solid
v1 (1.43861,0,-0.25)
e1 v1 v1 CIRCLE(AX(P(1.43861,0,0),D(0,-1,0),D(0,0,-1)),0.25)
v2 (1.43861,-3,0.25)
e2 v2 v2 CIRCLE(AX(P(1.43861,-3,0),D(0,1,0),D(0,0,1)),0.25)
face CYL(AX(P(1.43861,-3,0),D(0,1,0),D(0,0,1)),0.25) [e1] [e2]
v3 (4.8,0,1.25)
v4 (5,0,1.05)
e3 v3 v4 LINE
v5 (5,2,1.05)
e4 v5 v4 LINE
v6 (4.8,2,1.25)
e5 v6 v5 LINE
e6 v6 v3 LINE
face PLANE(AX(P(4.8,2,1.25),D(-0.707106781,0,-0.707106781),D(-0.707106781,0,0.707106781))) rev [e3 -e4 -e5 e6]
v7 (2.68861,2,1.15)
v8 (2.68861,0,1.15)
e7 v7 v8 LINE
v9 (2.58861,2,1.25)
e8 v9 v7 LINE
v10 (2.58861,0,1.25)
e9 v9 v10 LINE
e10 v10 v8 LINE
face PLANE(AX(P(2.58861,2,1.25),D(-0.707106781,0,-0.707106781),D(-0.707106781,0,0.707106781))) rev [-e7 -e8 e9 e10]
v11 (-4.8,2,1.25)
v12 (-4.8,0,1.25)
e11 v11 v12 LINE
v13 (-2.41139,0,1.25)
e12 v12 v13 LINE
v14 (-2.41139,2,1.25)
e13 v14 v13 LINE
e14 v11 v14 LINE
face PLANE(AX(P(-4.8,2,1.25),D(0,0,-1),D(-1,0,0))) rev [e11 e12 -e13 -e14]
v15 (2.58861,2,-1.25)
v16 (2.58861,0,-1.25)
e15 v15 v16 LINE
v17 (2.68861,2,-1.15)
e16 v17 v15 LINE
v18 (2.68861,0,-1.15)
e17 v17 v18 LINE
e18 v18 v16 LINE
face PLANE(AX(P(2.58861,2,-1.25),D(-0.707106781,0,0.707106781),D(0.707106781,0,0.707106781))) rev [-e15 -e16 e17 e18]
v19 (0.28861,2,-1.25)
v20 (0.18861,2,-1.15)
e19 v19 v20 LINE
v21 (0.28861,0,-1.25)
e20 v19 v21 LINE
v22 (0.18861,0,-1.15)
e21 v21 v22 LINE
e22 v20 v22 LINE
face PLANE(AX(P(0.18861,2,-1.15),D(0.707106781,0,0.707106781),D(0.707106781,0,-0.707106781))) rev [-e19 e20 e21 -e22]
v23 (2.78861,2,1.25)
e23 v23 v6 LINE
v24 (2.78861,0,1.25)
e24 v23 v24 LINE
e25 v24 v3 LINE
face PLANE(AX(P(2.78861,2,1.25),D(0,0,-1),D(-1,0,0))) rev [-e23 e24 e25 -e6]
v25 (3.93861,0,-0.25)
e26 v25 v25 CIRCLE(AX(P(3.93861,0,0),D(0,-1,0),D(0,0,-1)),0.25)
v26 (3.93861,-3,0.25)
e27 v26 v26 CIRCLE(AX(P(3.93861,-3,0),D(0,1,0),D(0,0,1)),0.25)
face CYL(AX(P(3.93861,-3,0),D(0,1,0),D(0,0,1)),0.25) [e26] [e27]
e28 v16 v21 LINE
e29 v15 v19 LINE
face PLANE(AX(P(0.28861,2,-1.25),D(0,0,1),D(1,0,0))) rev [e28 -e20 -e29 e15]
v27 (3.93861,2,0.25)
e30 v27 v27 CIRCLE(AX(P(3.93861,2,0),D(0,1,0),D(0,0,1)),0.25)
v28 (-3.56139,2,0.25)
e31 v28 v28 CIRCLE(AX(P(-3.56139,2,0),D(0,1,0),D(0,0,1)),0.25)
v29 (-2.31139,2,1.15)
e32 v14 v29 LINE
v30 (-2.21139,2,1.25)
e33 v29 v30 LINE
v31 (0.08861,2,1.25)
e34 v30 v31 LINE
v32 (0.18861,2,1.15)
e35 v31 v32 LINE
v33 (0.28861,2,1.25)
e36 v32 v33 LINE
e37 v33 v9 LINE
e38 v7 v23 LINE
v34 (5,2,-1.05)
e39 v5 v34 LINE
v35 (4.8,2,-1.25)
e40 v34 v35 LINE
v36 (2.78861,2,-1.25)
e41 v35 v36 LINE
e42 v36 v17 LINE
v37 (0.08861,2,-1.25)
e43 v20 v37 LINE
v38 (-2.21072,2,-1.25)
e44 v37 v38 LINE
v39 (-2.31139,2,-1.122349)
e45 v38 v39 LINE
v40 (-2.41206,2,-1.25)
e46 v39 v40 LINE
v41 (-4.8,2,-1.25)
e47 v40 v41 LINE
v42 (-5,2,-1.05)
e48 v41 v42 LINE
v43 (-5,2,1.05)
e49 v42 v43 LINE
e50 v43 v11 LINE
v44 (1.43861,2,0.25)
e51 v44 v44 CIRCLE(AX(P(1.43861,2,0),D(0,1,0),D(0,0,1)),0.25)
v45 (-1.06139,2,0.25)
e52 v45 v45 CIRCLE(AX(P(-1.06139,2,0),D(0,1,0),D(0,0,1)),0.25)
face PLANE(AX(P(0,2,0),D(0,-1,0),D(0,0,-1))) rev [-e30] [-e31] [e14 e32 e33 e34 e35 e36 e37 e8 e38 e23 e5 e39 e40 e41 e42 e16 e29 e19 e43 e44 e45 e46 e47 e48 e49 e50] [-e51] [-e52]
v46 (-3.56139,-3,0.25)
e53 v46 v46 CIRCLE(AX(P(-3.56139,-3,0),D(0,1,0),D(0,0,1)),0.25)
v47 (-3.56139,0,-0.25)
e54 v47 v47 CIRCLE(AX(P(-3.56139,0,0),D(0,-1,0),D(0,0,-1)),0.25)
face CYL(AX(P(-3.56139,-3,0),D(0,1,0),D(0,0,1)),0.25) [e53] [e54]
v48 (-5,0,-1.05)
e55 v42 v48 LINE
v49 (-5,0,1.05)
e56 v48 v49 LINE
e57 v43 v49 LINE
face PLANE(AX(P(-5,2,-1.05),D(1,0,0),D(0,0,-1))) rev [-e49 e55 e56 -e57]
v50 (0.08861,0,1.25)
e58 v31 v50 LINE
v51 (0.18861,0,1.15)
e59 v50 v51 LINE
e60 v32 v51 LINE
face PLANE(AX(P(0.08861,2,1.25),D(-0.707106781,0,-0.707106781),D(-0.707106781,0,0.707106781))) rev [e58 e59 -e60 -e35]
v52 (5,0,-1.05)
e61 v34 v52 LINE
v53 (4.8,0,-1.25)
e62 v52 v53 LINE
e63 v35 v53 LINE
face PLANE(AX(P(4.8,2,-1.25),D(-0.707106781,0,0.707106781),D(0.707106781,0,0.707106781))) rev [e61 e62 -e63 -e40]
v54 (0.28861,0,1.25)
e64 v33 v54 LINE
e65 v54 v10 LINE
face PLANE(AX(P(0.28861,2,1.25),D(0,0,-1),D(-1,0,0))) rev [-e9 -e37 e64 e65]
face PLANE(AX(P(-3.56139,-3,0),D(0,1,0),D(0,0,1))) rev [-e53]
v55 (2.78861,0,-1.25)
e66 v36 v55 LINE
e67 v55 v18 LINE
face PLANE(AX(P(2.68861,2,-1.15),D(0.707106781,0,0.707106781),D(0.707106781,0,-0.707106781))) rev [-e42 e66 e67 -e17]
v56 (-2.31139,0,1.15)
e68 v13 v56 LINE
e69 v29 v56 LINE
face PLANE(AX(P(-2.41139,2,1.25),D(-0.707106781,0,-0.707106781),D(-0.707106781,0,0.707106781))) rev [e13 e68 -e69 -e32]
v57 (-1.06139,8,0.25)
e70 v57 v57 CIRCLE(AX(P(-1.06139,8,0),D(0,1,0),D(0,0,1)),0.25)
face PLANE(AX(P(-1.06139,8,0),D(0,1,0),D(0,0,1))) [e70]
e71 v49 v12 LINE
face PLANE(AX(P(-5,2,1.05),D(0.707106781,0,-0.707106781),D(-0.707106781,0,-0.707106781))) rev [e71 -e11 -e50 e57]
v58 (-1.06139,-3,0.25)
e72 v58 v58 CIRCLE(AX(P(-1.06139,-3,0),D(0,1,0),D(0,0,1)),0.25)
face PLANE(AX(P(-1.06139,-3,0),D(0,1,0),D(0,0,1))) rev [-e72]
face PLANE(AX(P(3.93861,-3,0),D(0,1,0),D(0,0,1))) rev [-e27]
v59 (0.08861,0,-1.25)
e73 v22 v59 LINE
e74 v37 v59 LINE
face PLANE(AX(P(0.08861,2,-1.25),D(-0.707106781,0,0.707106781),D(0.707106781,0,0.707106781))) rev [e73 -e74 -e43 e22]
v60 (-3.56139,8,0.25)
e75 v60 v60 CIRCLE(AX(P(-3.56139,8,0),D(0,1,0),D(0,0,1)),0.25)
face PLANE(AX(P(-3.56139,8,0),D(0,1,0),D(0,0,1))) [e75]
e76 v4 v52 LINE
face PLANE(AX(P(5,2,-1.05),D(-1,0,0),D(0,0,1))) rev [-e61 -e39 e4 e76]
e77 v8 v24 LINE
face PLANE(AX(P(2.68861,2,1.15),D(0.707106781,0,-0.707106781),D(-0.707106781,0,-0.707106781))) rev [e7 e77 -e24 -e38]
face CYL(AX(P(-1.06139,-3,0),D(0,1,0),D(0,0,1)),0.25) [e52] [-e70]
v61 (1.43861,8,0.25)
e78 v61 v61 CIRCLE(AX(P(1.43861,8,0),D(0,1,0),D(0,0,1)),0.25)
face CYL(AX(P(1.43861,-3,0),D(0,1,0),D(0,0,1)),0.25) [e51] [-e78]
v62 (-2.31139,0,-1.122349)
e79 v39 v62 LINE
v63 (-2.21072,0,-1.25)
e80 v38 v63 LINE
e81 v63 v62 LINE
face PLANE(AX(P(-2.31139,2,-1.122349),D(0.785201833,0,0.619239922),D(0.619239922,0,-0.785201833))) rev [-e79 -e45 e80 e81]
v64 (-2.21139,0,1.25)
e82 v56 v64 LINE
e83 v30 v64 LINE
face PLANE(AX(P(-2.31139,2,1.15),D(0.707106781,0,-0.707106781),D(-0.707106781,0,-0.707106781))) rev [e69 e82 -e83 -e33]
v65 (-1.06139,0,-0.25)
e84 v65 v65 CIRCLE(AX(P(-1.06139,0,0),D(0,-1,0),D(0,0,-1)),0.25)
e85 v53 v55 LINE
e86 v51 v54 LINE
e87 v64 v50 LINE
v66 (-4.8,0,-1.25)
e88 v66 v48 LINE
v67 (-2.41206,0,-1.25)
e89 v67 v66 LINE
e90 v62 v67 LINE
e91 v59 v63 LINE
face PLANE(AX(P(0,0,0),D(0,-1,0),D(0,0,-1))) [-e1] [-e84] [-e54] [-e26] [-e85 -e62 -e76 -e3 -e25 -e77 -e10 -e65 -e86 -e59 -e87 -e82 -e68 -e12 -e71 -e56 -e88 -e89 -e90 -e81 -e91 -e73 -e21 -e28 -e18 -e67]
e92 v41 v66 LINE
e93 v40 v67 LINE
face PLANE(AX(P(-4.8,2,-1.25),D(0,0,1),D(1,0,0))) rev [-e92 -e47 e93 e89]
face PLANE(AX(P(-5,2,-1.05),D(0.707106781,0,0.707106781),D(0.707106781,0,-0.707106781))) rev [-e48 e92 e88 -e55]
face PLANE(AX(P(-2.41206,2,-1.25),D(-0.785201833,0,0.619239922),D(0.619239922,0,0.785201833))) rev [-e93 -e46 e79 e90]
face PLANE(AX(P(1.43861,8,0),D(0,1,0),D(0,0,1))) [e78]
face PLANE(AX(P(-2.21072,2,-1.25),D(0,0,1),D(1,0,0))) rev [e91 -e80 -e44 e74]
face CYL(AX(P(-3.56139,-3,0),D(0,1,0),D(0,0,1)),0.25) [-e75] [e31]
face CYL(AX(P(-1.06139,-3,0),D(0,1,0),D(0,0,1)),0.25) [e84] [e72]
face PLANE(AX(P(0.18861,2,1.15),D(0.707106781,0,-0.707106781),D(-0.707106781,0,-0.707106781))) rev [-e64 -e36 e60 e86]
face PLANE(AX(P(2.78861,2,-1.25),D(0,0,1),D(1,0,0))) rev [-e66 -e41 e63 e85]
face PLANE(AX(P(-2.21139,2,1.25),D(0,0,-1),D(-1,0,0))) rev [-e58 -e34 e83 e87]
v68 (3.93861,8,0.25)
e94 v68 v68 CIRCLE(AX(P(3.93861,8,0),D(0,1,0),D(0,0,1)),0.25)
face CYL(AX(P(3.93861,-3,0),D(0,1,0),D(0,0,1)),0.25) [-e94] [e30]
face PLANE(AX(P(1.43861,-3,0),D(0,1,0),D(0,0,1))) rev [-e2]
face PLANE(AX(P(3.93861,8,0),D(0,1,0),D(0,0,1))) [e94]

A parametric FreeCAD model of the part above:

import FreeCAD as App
import Part
import Sketcher

V = App.Vector
Q = App.Units.Quantity

doc = App.newDocument("Part")
params = doc.addObject("Spreadsheet::Sheet", "Params")
for row, (alias, value) in enumerate([
    ("sketch1_diameter", "0.5 mm"),
    ("sketch1_width", "2.3 mm"),
    ("sketch1_height", "2.1 mm"),
    ("pad1_length", "2 mm"),
    ("sketch2_diameter", "0.5 mm"),
    ("pad2_length", "6 mm"),
    ("pad2_length2", "5 mm"),
], start=1):
    params.set(f"A{row}", alias)
    params.set(f"B{row}", "=" + value)
    params.setAlias(f"B{row}", alias)

body = doc.addObject("PartDesign::Body", "Body")

sketch1 = body.newObject("Sketcher::SketchObject", "Sketch")
sketch1.AttachmentSupport = (doc.getObject("XZ_Plane"), [""])
sketch1.MapMode = "FlatFace"
sketch1.addGeometry(Part.LineSegment(V(-2.41, -1.25, 0), V(-4.8, -1.25, 0)), False)
sketch1.addGeometry(Part.LineSegment(V(-4.8, -1.25, 0), V(-5, -1.05, 0)), False)
sketch1.addGeometry(Part.LineSegment(V(-5, -1.05, 0), V(-5, 1.05, 0)), False)
sketch1.addGeometry(Part.LineSegment(V(-5, 1.05, 0), V(-4.8, 1.25, 0)), False)
sketch1.addGeometry(Part.LineSegment(V(-4.8, 1.25, 0), V(-2.41, 1.25, 0)), False)
sketch1.addGeometry(Part.LineSegment(V(-2.41, 1.25, 0), V(-2.31, 1.15, 0)), False)
sketch1.addGeometry(Part.LineSegment(V(-2.31, 1.15, 0), V(-2.21, 1.25, 0)), False)
sketch1.addGeometry(Part.LineSegment(V(-2.21, 1.25, 0), V(0.09, 1.25, 0)), False)
sketch1.addGeometry(Part.LineSegment(V(0.09, 1.25, 0), V(0.19, 1.15, 0)), False)
sketch1.addGeometry(Part.LineSegment(V(0.19, 1.15, 0), V(0.29, 1.25, 0)), False)
sketch1.addGeometry(Part.LineSegment(V(0.29, 1.25, 0), V(2.59, 1.25, 0)), False)
sketch1.addGeometry(Part.LineSegment(V(2.59, 1.25, 0), V(2.69, 1.15, 0)), False)
sketch1.addGeometry(Part.LineSegment(V(2.69, 1.15, 0), V(2.79, 1.25, 0)), False)
sketch1.addGeometry(Part.LineSegment(V(2.79, 1.25, 0), V(4.8, 1.25, 0)), False)
sketch1.addGeometry(Part.LineSegment(V(4.8, 1.25, 0), V(5, 1.05, 0)), False)
sketch1.addGeometry(Part.LineSegment(V(5, 1.05, 0), V(5, -1.05, 0)), False)
sketch1.addGeometry(Part.LineSegment(V(5, -1.05, 0), V(4.8, -1.25, 0)), False)
sketch1.addGeometry(Part.LineSegment(V(4.8, -1.25, 0), V(2.79, -1.25, 0)), False)
sketch1.addGeometry(Part.LineSegment(V(2.79, -1.25, 0), V(2.69, -1.15, 0)), False)
sketch1.addGeometry(Part.LineSegment(V(2.69, -1.15, 0), V(2.59, -1.25, 0)), False)
sketch1.addGeometry(Part.LineSegment(V(2.59, -1.25, 0), V(0.29, -1.25, 0)), False)
sketch1.addGeometry(Part.LineSegment(V(0.29, -1.25, 0), V(0.19, -1.15, 0)), False)
sketch1.addGeometry(Part.LineSegment(V(0.19, -1.15, 0), V(0.09, -1.25, 0)), False)
sketch1.addGeometry(Part.LineSegment(V(0.09, -1.25, 0), V(-2.21, -1.25, 0)), False)
sketch1.addGeometry(Part.LineSegment(V(-2.21, -1.25, 0), V(-2.31, -1.12, 0)), False)
sketch1.addGeometry(Part.LineSegment(V(-2.31, -1.12, 0), V(-2.41, -1.25, 0)), False)
sketch1.addGeometry(Part.Circle(V(3.94, 0, 0), V(0, 0, 1), 0.25), False)
sketch1.addGeometry(Part.Circle(V(1.44, 0, 0), V(0, 0, 1), 0.25), False)
sketch1.addGeometry(Part.Circle(V(-1.06, 0, 0), V(0, 0, 1), 0.25), False)
sketch1.addGeometry(Part.Circle(V(-3.56, 0, 0), V(0, 0, 1), 0.25), False)
sketch1.addConstraint(Sketcher.Constraint("Coincident", 0, 2, 1, 1))
sketch1.addConstraint(Sketcher.Constraint("Coincident", 1, 2, 2, 1))
sketch1.addConstraint(Sketcher.Constraint("Coincident", 2, 2, 3, 1))
sketch1.addConstraint(Sketcher.Constraint("Coincident", 3, 2, 4, 1))
sketch1.addConstraint(Sketcher.Constraint("Coincident", 4, 2, 5, 1))
sketch1.addConstraint(Sketcher.Constraint("Coincident", 5, 2, 6, 1))
sketch1.addConstraint(Sketcher.Constraint("Coincident", 6, 2, 7, 1))
sketch1.addConstraint(Sketcher.Constraint("Coincident", 7, 2, 8, 1))
sketch1.addConstraint(Sketcher.Constraint("Coincident", 8, 2, 9, 1))
sketch1.addConstraint(Sketcher.Constraint("Coincident", 9, 2, 10, 1))
sketch1.addConstraint(Sketcher.Constraint("Coincident", 10, 2, 11, 1))
sketch1.addConstraint(Sketcher.Constraint("Coincident", 11, 2, 12, 1))
sketch1.addConstraint(Sketcher.Constraint("Coincident", 12, 2, 13, 1))
sketch1.addConstraint(Sketcher.Constraint("Coincident", 13, 2, 14, 1))
sketch1.addConstraint(Sketcher.Constraint("Coincident", 14, 2, 15, 1))
sketch1.addConstraint(Sketcher.Constraint("Coincident", 15, 2, 16, 1))
sketch1.addConstraint(Sketcher.Constraint("Coincident", 16, 2, 17, 1))
sketch1.addConstraint(Sketcher.Constraint("Coincident", 17, 2, 18, 1))
sketch1.addConstraint(Sketcher.Constraint("Coincident", 18, 2, 19, 1))
sketch1.addConstraint(Sketcher.Constraint("Coincident", 19, 2, 20, 1))
sketch1.addConstraint(Sketcher.Constraint("Coincident", 20, 2, 21, 1))
sketch1.addConstraint(Sketcher.Constraint("Coincident", 21, 2, 22, 1))
sketch1.addConstraint(Sketcher.Constraint("Coincident", 22, 2, 23, 1))
sketch1.addConstraint(Sketcher.Constraint("Coincident", 23, 2, 24, 1))
sketch1.addConstraint(Sketcher.Constraint("Coincident", 24, 2, 25, 1))
sketch1.addConstraint(Sketcher.Constraint("Coincident", 25, 2, 0, 1))
sketch1.addConstraint(Sketcher.Constraint("Horizontal", 0))
sketch1.addConstraint(Sketcher.Constraint("Vertical", 2))
sketch1.addConstraint(Sketcher.Constraint("Horizontal", 4))
sketch1.addConstraint(Sketcher.Constraint("Horizontal", 7))
sketch1.addConstraint(Sketcher.Constraint("Horizontal", 10))
sketch1.addConstraint(Sketcher.Constraint("Horizontal", 13))
sketch1.addConstraint(Sketcher.Constraint("Vertical", 15))
sketch1.addConstraint(Sketcher.Constraint("Horizontal", 17))
sketch1.addConstraint(Sketcher.Constraint("Horizontal", 20))
sketch1.addConstraint(Sketcher.Constraint("Horizontal", 23))
sketch1.addConstraint(Sketcher.Constraint("Equal", 26, 27))
sketch1.addConstraint(Sketcher.Constraint("Equal", 27, 28))
sketch1.addConstraint(Sketcher.Constraint("Equal", 28, 29))
sketch1.addConstraint(Sketcher.Constraint("Symmetric", 0, 2, 13, 2, -1, 1))
sketch1.addConstraint(Sketcher.Constraint("Symmetric", 1, 2, 14, 2, -1, 1))
sketch1.addConstraint(Sketcher.Constraint("Symmetric", 3, 2, 16, 2, -1, 1))
sketch1.addConstraint(Sketcher.Constraint("Symmetric", 3, 2, 13, 2, -2))
sketch1.addConstraint(Sketcher.Constraint("Symmetric", 11, 2, 18, 2, -1))
sketch1.addConstraint(Sketcher.Constraint("Symmetric", 10, 2, 19, 2, -1))
sketch1.addConstraint(Sketcher.Constraint("Symmetric", 8, 2, 21, 2, -1))
sketch1.addConstraint(Sketcher.Constraint("Symmetric", 7, 2, 22, 2, -1))
sketch1.addConstraint(Sketcher.Constraint("PointOnObject", 26, 3, -1))
sketch1.addConstraint(Sketcher.Constraint("PointOnObject", 27, 3, -1))
sketch1.addConstraint(Sketcher.Constraint("PointOnObject", 28, 3, -1))
sketch1.addConstraint(Sketcher.Constraint("PointOnObject", 29, 3, -1))
sketch1.addConstraint(Sketcher.Constraint("Perpendicular", 1, 3))
sketch1.addConstraint(Sketcher.Constraint("Perpendicular", 3, 5))
sketch1.addConstraint(Sketcher.Constraint("Perpendicular", 5, 6))
sketch1.addConstraint(Sketcher.Constraint("Perpendicular", 6, 8))
sketch1.addConstraint(Sketcher.Constraint("Perpendicular", 8, 9))
sketch1.addConstraint(Sketcher.Constraint("Perpendicular", 9, 11))
sketch1.addConstraint(Sketcher.Constraint("Perpendicular", 11, 12))
sketch1.addConstraint(Sketcher.Constraint("Perpendicular", 14, 16))
sketch1.addConstraint(Sketcher.Constraint("Perpendicular", 16, 18))
sketch1.addConstraint(Sketcher.Constraint("Perpendicular", 18, 19))
sketch1.addConstraint(Sketcher.Constraint("Perpendicular", 19, 21))
sketch1.addConstraint(Sketcher.Constraint("Horizontal", 4, 2, 6, 2))
sketch1.addConstraint(Sketcher.Constraint("Horizontal", 5, 2, 8, 2))
sketch1.addConstraint(Sketcher.Constraint("Horizontal", 7, 2, 9, 2))
sketch1.addConstraint(Sketcher.Constraint("Horizontal", 8, 2, 11, 2))
sketch1.addConstraint(Sketcher.Constraint("Vertical", 5, 2, 24, 2))
sketch1.addConstraint(Sketcher.Constraint("Equal", 7, 10))
sketch1.addConstraint(Sketcher.Constraint("Equal", 24, 25))
sketch1.addConstraint(Sketcher.Constraint("Diameter", 26, Q("0.5 mm")))
sketch1.addConstraint(Sketcher.Constraint("DistanceX", 7, 1, 7, 2, Q("2.3 mm")))
sketch1.addConstraint(Sketcher.Constraint("DistanceY", 2, 1, 2, 2, Q("2.1 mm")))
sketch1.addConstraint(Sketcher.Constraint("DistanceX", 1, 2, -1, 1, Q("5 mm")))
sketch1.addConstraint(Sketcher.Constraint("DistanceX", 28, 3, 26, 3, Q("5 mm")))
sketch1.addConstraint(Sketcher.Constraint("DistanceX", 29, 3, 27, 3, Q("5 mm")))
sketch1.addConstraint(Sketcher.Constraint("DistanceX", 0, 2, -1, 1, Q("4.8 mm")))
sketch1.addConstraint(Sketcher.Constraint("DistanceX", 27, 3, 26, 3, Q("2.5 mm")))
sketch1.addConstraint(Sketcher.Constraint("DistanceX", 4, 2, 5, 2, Q("0.1 mm")))
sketch1.addConstraint(Sketcher.Constraint("DistanceX", 29, 3, 4, 2, Q("1.15 mm")))
sketch1.addConstraint(Sketcher.Constraint("DistanceX", 0, 2, 0, 1, Q("2.38794 mm")))
sketch1.addConstraint(Sketcher.Constraint("DistanceX", 4, 1, 4, 2, Q("2.38861 mm")))
sketch1.addConstraint(Sketcher.Constraint("Distance", 24, Q("0.162571 mm")))
sketch1.setExpression("Constraints[69]", "Params.sketch1_diameter")
sketch1.setExpression("Constraints[70]", "Params.sketch1_width")
sketch1.setExpression("Constraints[71]", "Params.sketch1_height")
pad1 = body.newObject("PartDesign::Pad", "Pad")
pad1.Profile = sketch1
pad1.setExpression("Length", "Params.pad1_length")
pad1.Reversed = True

sketch2 = body.newObject("Sketcher::SketchObject", "Sketch001")
sketch2.AttachmentSupport = (doc.getObject("XZ_Plane"), [""])
sketch2.MapMode = "FlatFace"
sketch2.AttachmentOffset = App.Placement(V(0, 0, -2), App.Rotation())
sketch2.addGeometry(Part.Circle(V(-3.56, 0, 0), V(0, 0, 1), 0.25), False)
sketch2.addGeometry(Part.Circle(V(-1.06, 0, 0), V(0, 0, 1), 0.25), False)
sketch2.addGeometry(Part.Circle(V(1.44, 0, 0), V(0, 0, 1), 0.25), False)
sketch2.addGeometry(Part.Circle(V(3.94, 0, 0), V(0, 0, 1), 0.25), False)
sketch2.addConstraint(Sketcher.Constraint("Equal", 0, 1))
sketch2.addConstraint(Sketcher.Constraint("Equal", 1, 2))
sketch2.addConstraint(Sketcher.Constraint("Equal", 2, 3))
sketch2.addConstraint(Sketcher.Constraint("PointOnObject", 0, 3, -1))
sketch2.addConstraint(Sketcher.Constraint("PointOnObject", 1, 3, -1))
sketch2.addConstraint(Sketcher.Constraint("PointOnObject", 2, 3, -1))
sketch2.addConstraint(Sketcher.Constraint("PointOnObject", 3, 3, -1))
sketch2.addConstraint(Sketcher.Constraint("Diameter", 0, Q("0.5 mm")))
sketch2.addConstraint(Sketcher.Constraint("DistanceX", 0, 3, 2, 3, Q("5 mm")))
sketch2.addConstraint(Sketcher.Constraint("DistanceX", 1, 3, 3, 3, Q("5 mm")))
sketch2.addConstraint(Sketcher.Constraint("DistanceX", 0, 3, 1, 3, Q("2.5 mm")))
sketch2.addConstraint(Sketcher.Constraint("DistanceX", 0, 3, -1, 1, Q("3.56139 mm")))
sketch2.setExpression("Constraints[7]", "Params.sketch2_diameter")
pad2 = body.newObject("PartDesign::Pad", "Pad001")
pad2.Profile = sketch2
pad2.Type = "TwoLengths"
pad2.setExpression("Length", "Params.pad2_length")
pad2.setExpression("Length2", "Params.pad2_length2")
pad2.Reversed = True

doc.recompute()
